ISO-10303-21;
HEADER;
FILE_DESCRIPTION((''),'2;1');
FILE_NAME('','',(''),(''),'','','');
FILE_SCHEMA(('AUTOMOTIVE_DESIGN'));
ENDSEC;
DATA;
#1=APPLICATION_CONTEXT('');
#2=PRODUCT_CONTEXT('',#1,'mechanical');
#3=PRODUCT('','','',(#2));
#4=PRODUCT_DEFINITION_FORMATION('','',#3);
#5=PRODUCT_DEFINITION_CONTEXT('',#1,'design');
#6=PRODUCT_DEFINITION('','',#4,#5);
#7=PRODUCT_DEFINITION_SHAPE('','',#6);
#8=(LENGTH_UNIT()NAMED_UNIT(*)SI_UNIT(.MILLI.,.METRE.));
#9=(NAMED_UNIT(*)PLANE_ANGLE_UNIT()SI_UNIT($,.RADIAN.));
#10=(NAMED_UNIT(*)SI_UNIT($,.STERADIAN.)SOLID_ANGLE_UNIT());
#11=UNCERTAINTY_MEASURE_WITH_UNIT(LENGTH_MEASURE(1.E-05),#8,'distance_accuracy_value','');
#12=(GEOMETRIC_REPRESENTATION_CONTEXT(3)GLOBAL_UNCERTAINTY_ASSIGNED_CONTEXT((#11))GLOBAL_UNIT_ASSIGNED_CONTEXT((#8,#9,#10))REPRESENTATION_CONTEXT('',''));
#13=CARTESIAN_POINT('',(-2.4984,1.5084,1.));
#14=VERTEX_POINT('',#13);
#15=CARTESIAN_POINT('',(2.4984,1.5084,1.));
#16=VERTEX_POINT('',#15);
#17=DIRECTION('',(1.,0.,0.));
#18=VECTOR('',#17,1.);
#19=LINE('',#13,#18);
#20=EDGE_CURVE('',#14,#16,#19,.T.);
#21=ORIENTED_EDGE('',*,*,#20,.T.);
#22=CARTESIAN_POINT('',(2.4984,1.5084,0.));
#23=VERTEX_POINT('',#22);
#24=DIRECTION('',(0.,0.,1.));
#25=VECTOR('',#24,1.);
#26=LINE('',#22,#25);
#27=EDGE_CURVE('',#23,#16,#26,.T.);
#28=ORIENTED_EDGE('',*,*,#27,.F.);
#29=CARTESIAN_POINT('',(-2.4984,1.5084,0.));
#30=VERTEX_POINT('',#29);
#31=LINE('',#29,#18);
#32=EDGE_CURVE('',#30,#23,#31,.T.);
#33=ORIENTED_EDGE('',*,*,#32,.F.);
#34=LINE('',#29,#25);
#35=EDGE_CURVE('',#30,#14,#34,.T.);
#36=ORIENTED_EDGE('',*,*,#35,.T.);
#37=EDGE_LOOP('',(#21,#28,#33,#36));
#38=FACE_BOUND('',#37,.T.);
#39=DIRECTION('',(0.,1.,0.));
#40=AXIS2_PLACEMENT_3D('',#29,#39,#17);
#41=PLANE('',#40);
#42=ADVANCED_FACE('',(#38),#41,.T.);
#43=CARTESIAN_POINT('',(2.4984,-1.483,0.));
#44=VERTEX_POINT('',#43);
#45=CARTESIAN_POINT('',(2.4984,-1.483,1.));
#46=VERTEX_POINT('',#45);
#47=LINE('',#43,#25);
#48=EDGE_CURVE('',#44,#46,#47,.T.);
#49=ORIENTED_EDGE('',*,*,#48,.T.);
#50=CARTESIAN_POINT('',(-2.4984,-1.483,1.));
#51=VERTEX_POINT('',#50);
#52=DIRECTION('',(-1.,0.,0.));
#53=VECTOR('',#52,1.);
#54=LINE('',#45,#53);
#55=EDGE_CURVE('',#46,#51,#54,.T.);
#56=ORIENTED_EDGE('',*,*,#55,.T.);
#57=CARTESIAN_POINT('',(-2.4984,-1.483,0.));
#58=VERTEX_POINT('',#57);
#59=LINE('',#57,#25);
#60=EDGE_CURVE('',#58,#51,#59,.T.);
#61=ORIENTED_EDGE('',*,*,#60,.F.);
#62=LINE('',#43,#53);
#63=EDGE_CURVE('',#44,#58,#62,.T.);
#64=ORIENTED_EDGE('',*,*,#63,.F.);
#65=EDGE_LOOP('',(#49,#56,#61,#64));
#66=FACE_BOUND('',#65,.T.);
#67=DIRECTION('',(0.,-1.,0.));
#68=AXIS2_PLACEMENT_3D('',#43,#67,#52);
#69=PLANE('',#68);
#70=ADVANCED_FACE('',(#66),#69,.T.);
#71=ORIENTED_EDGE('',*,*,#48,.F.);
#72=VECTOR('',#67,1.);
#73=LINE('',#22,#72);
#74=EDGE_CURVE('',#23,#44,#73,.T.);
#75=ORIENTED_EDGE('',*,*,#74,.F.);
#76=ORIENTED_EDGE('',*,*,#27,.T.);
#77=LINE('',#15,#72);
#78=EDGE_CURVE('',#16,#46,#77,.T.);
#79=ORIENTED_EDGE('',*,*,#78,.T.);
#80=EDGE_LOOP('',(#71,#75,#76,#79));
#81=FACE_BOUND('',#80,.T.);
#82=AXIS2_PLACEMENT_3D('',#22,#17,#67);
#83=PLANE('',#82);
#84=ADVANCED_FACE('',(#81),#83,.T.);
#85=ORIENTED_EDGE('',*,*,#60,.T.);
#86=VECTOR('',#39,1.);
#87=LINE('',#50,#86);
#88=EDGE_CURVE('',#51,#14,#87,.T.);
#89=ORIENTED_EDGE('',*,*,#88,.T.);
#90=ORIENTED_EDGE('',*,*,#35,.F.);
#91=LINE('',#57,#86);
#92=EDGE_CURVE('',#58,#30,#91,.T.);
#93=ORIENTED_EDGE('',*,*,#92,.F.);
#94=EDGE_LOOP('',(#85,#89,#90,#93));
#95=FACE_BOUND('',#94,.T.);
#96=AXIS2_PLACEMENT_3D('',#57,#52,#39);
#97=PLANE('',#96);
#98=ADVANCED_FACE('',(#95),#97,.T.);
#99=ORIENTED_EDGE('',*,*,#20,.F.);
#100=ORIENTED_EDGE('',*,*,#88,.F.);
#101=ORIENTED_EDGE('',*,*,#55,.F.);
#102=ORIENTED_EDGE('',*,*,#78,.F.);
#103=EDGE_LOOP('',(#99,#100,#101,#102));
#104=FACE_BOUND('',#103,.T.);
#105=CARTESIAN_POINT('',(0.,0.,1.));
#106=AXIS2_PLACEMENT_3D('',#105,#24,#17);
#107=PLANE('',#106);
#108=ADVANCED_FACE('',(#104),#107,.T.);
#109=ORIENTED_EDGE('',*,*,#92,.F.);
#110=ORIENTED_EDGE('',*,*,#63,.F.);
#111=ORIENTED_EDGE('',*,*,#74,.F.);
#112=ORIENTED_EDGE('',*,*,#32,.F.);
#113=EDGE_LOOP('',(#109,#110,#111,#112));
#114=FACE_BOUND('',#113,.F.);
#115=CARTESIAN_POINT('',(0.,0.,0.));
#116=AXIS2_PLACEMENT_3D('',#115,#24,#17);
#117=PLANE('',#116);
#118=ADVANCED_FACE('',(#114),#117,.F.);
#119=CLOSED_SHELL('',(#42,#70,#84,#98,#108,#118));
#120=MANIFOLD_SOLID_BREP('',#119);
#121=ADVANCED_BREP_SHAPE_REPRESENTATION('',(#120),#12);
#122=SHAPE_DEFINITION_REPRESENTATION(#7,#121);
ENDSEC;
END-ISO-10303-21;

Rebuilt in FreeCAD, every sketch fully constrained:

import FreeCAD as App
import Part
import Sketcher
from FreeCAD import Vector

doc = App.newDocument("Part")
body = doc.addObject("PartDesign::Body", "Body")

sketch1 = body.newObject("Sketcher::SketchObject", "Sketch")
sketch1.AttachmentSupport = (doc.getObject("XY_Plane"), [""])
sketch1.MapMode = "FlatFace"
sketch1.addGeometry([
    Part.LineSegment(Vector(2.5, 1.5, 0), Vector(-2.5, 1.5, 0)),
    Part.LineSegment(Vector(-2.5, 1.5, 0), Vector(-2.5, -1.5, 0)),
    Part.LineSegment(Vector(-2.5, -1.5, 0), Vector(2.5, -1.5, 0)),
    Part.LineSegment(Vector(2.5, -1.5, 0), Vector(2.5, 1.5, 0)),
], False)
sketch1.addConstraint([
    Sketcher.Constraint("Coincident", 0, 2, 1, 1),
    Sketcher.Constraint("Coincident", 1, 2, 2, 1),
    Sketcher.Constraint("Coincident", 2, 2, 3, 1),
    Sketcher.Constraint("Coincident", 3, 2, 0, 1),
    Sketcher.Constraint("Horizontal", 0),
    Sketcher.Constraint("Vertical", 1),
    Sketcher.Constraint("Horizontal", 2),
    Sketcher.Constraint("Vertical", 3),
    Sketcher.Constraint("DistanceX", 0, 2, 0, 1, 4.9968),
    Sketcher.Constraint("DistanceY", 1, 2, 1, 1, 2.9914),
    Sketcher.Constraint("DistanceY", 1, 2, -1, 1, 1.483),
    Sketcher.Constraint("DistanceX", 0, 2, -1, 1, 2.4984),
])
pad1 = body.newObject("PartDesign::Pad", "Pad")
pad1.Profile = sketch1
pad1.Length = 1

doc.recompute()
